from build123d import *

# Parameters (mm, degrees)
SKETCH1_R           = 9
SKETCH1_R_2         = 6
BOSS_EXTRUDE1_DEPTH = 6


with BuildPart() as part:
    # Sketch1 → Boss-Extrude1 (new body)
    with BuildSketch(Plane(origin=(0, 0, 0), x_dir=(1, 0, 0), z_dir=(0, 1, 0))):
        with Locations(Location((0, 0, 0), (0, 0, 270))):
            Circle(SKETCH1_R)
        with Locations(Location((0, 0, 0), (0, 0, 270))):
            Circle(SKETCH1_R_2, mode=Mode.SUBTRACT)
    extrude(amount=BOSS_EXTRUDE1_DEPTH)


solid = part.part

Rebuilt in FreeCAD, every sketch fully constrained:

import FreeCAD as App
import Part
import Sketcher
from FreeCAD import Vector
Q = App.Units.Quantity

doc = App.newDocument("Part")
body = doc.addObject("PartDesign::Body", "Body")

sketch1 = body.newObject("Sketcher::SketchObject", "Sketch")
sketch1.AttachmentSupport = (doc.getObject("XZ_Plane"), [""])
sketch1.MapMode = "FlatFace"
sketch1.addGeometry([
    Part.Circle(Vector(0, 0, 0), Vector(0, 0, 1), 9),
    Part.Circle(Vector(0, 0, 0), Vector(0, 0, 1), 6),
], False)
sketch1.addConstraint([
    Sketcher.Constraint("Coincident", 0, 3, -1, 1),
    Sketcher.Constraint("Coincident", 1, 3, -1, 1),
    Sketcher.Constraint("Diameter", 0, Q("18 mm")),
    Sketcher.Constraint("Diameter", 1, Q("12 mm")),
])
pad1 = body.newObject("PartDesign::Pad", "Pad")
pad1.Profile = sketch1
pad1.Length = 6
pad1.Reversed = True

doc.recompute()
